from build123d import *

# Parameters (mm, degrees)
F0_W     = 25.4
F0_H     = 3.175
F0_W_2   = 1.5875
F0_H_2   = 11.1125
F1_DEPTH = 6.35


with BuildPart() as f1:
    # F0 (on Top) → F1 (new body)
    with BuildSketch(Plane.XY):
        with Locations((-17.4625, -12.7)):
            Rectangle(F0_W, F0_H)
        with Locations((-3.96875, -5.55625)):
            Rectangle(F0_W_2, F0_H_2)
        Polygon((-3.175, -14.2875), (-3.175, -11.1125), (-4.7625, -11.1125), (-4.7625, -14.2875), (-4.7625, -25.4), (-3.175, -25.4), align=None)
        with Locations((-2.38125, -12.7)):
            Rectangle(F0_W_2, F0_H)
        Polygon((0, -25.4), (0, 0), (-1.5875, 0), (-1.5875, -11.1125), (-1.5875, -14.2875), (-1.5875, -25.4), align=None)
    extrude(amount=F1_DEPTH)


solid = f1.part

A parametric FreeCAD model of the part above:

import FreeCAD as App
import Part
import Sketcher
from FreeCAD import Vector
Q = App.Units.Quantity

doc = App.newDocument("Part")
body = doc.addObject("PartDesign::Body", "Body")

# Sketch on XY plane
sketch1 = body.newObject("Sketcher::SketchObject", "Sketch")
sketch1.AttachmentSupport = (doc.getObject("XY_Plane"), [""])
sketch1.MapMode = "FlatFace"
sketch1.addGeometry([
    Part.LineSegment(Vector(-30.2, -11.1, 0), Vector(-30.2, -14.3, 0)),  # 0
    Part.LineSegment(Vector(-30.2, -14.3, 0), Vector(-4.8, -14.3, 0)),  # 1
    Part.LineSegment(Vector(-4.8, -14.3, 0), Vector(-4.8, -25.4, 0)),  # 2
    Part.LineSegment(Vector(-4.8, -25.4, 0), Vector(-3.2, -25.4, 0)),  # 3
    Part.LineSegment(Vector(-3.2, -25.4, 0), Vector(-3.2, -14.3, 0)),  # 4
    Part.LineSegment(Vector(-3.2, -14.3, 0), Vector(-1.6, -14.3, 0)),  # 5
    Part.LineSegment(Vector(-1.6, -14.3, 0), Vector(-1.6, -25.4, 0)),  # 6
    Part.LineSegment(Vector(-1.6, -25.4, 0), Vector(0, -25.4, 0)),  # 7
    Part.LineSegment(Vector(0, -25.4, 0), Vector(0, 0, 0)),  # 8
    Part.LineSegment(Vector(0, 0, 0), Vector(-1.6, 0, 0)),  # 9
    Part.LineSegment(Vector(-1.6, 0, 0), Vector(-1.6, -11.1, 0)),  # 10
    Part.LineSegment(Vector(-1.6, -11.1, 0), Vector(-3.2, -11.1, 0)),  # 11
    Part.LineSegment(Vector(-3.2, -11.1, 0), Vector(-3.2, 0, 0)),  # 12
    Part.LineSegment(Vector(-3.2, 0, 0), Vector(-4.8, 0, 0)),  # 13
    Part.LineSegment(Vector(-4.8, 0, 0), Vector(-4.8, -11.1, 0)),  # 14
    Part.LineSegment(Vector(-4.8, -11.1, 0), Vector(-30.2, -11.1, 0)),  # 15
], False)
sketch1.addConstraint([
    Sketcher.Constraint("Coincident", 0, 2, 1, 1),
    Sketcher.Constraint("Coincident", 1, 2, 2, 1),
    Sketcher.Constraint("Coincident", 2, 2, 3, 1),
    Sketcher.Constraint("Coincident", 3, 2, 4, 1),
    Sketcher.Constraint("Coincident", 4, 2, 5, 1),
    Sketcher.Constraint("Coincident", 5, 2, 6, 1),
    Sketcher.Constraint("Coincident", 6, 2, 7, 1),
    Sketcher.Constraint("Coincident", 7, 2, 8, 1),
    Sketcher.Constraint("Coincident", 8, 2, 9, 1),
    Sketcher.Constraint("Coincident", 9, 2, 10, 1),
    Sketcher.Constraint("Coincident", 10, 2, 11, 1),
    Sketcher.Constraint("Coincident", 11, 2, 12, 1),
    Sketcher.Constraint("Coincident", 12, 2, 13, 1),
    Sketcher.Constraint("Coincident", 13, 2, 14, 1),
    Sketcher.Constraint("Coincident", 14, 2, 15, 1),
    Sketcher.Constraint("Coincident", 15, 2, 0, 1),
    Sketcher.Constraint("Vertical", 0),
    Sketcher.Constraint("Horizontal", 1),
    Sketcher.Constraint("Vertical", 2),
    Sketcher.Constraint("Horizontal", 3),
    Sketcher.Constraint("Vertical", 4),
    Sketcher.Constraint("Horizontal", 5),
    Sketcher.Constraint("Vertical", 6),
    Sketcher.Constraint("Horizontal", 7),
    Sketcher.Constraint("Vertical", 8),
    Sketcher.Constraint("Horizontal", 9),
    Sketcher.Constraint("Vertical", 10),
    Sketcher.Constraint("Horizontal", 11),
    Sketcher.Constraint("Vertical", 12),
    Sketcher.Constraint("Horizontal", 13),
    Sketcher.Constraint("Vertical", 14),
    Sketcher.Constraint("Horizontal", 15),
    Sketcher.Constraint("Coincident", 8, 2, -1, 1),
    Sketcher.Constraint("PointOnObject", 12, 2, -1),
    Sketcher.Constraint("Horizontal", 1, 2, 4, 2),
    Sketcher.Constraint("Horizontal", 3, 2, 6, 2),
    Sketcher.Constraint("Horizontal", 11, 2, 14, 2),
    Sketcher.Constraint("Vertical", 6, 2, 9, 2),
    Sketcher.Constraint("Vertical", 4, 2, 11, 2),
    Sketcher.Constraint("Vertical", 2, 2, 13, 2),
    Sketcher.Constraint("Equal", 3, 5),
    Sketcher.Constraint("Equal", 5, 7),
    Sketcher.Constraint("Equal", 15, 8),
    Sketcher.Constraint("Equal", 6, 10),
    Sketcher.Constraint("DistanceX", 1, 1, 1, 2, Q("1 in")),
    Sketcher.Constraint("DistanceX", 3, 1, 3, 2, Q("0.0625 in")),
    Sketcher.Constraint("DistanceY", 0, 2, 0, 1, Q("0.125 in")),
])
pad1 = body.newObject("PartDesign::Pad", "Pad")
pad1.Profile = sketch1
pad1.Length = Q("0.25 in")

doc.recompute()
